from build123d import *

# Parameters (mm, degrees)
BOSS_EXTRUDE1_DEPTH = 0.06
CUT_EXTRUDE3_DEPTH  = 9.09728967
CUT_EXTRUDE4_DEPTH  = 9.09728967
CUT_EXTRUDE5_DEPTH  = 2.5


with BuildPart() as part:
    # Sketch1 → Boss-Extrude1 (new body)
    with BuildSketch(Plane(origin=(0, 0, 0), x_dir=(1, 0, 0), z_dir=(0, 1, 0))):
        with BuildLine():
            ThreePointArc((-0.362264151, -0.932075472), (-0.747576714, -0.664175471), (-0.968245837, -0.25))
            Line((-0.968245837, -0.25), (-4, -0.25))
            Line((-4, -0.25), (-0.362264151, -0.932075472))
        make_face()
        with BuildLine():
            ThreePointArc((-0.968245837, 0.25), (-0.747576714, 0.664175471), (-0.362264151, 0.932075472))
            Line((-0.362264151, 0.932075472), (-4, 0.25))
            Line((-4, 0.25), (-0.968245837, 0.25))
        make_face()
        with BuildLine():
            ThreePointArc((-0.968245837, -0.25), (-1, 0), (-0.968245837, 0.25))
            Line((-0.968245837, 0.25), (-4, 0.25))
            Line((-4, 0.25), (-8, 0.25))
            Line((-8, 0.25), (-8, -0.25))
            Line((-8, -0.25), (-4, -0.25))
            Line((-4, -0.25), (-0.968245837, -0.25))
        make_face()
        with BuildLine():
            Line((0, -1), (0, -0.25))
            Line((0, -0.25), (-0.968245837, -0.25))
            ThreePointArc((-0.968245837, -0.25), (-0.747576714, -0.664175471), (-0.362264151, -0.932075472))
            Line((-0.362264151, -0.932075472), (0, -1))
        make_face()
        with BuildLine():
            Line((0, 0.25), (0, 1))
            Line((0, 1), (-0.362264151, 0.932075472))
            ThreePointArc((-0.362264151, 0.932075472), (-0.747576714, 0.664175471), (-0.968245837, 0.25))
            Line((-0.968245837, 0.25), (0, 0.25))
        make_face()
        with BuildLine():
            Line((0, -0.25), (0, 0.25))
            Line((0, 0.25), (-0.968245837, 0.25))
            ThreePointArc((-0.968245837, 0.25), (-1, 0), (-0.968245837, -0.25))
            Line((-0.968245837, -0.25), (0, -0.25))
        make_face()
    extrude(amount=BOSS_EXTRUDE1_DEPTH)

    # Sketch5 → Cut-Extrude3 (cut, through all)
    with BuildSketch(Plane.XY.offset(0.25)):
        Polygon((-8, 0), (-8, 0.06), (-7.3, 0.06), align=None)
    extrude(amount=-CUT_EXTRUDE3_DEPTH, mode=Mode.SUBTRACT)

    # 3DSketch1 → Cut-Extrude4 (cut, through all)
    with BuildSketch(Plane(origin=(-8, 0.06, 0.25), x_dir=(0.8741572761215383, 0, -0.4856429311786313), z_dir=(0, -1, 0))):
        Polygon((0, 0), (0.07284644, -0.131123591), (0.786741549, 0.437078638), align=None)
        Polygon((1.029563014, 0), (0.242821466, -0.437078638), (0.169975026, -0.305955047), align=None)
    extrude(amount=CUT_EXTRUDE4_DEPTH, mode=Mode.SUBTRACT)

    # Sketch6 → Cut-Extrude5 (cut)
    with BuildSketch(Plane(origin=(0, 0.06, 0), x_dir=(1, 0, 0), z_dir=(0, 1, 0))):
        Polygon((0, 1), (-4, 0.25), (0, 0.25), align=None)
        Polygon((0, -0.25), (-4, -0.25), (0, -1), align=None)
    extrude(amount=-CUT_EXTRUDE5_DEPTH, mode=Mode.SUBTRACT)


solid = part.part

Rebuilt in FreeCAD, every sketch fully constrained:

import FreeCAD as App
import Part
import Sketcher
from FreeCAD import Vector
Q = App.Units.Quantity


def add_polygon(sketch, points):
    """Adds a closed chain of lines whose ends are joined by coincident constraints."""
    first, n = sketch.GeometryCount, len(points)
    for a, b in zip(points, points[1:] + points[:1]):
        sketch.addGeometry(Part.LineSegment(App.Vector(*a, 0), App.Vector(*b, 0)), False)
    for i in range(n):
        sketch.addConstraint(Sketcher.Constraint("Coincident", first + i, 2, first + (i + 1) % n, 1))

doc = App.newDocument("Part")
body = doc.addObject("PartDesign::Body", "Body")

# Sketch on XZ plane
sketch1 = body.newObject("Sketcher::SketchObject", "Sketch")
sketch1.AttachmentSupport = (doc.getObject("XZ_Plane"), [""])
sketch1.MapMode = "FlatFace"
add_polygon(sketch1, [(0, -1), (-0.362264, -0.932075), (-4, -0.25), (-8, -0.25), (-8, 0.25), (-4, 0.25), (-0.362264, 0.932075), (0, 1)])  # lines 0-7
sketch1.addConstraint([
    Sketcher.Constraint("Horizontal", 2),
    Sketcher.Constraint("Vertical", 3),
    Sketcher.Constraint("Horizontal", 4),
    Sketcher.Constraint("Vertical", 7),
    Sketcher.Constraint("Symmetric", 6, 2, 7, 2, -1, 1),
    Sketcher.Constraint("Symmetric", 1, 2, 4, 2, -1),
    Sketcher.Constraint("Symmetric", 0, 2, 5, 2, -1),
    Sketcher.Constraint("Parallel", 0, 1),
    Sketcher.Constraint("DistanceX", 2, 2, 2, 1, Q("4 mm")),
    Sketcher.Constraint("DistanceY", 7, 2, 7, 1, Q("2 mm")),
    Sketcher.Constraint("DistanceY", 3, 1, 3, 2, Q("0.5 mm")),
    Sketcher.Constraint("DistanceX", 1, 2, -1, 1, Q("4 mm")),
    Sketcher.Constraint("Distance", 1, Q("3.701128 mm")),
])
pad1 = body.newObject("PartDesign::Pad", "Pad")
pad1.Profile = sketch1
pad1.Length = 0.06
pad1.Reversed = True

# Sketch on XY plane
sketch2 = body.newObject("Sketcher::SketchObject", "Sketch001")
sketch2.AttachmentSupport = (doc.getObject("XY_Plane"), [""])
sketch2.MapMode = "FlatFace"
sketch2.AttachmentOffset = App.Placement(Vector(0, 0, 0.25), App.Rotation())
add_polygon(sketch2, [(-8, 0.06), (-8, 0), (-7.3, 0.06)])  # lines 0-2
sketch2.addConstraint([
    Sketcher.Constraint("Vertical", 0),
    Sketcher.Constraint("Horizontal", 2),
    Sketcher.Constraint("PointOnObject", 0, 2, -1),
    Sketcher.Constraint("DistanceX", 2, 2, 2, 1, Q("0.7 mm")),
    Sketcher.Constraint("DistanceX", 0, 2, -1, 1, Q("8 mm")),
    Sketcher.Constraint("DistanceY", 0, 2, 0, 1, Q("0.06 mm")),
])
pocket1 = body.newObject("PartDesign::Pocket", "Pocket")
pocket1.Profile = sketch2
pocket1.Type = "ThroughAll"

# Sketch on XZ plane
sketch3 = body.newObject("Sketcher::SketchObject", "Sketch002")
sketch3.AttachmentSupport = (doc.getObject("XZ_Plane"), [""])
sketch3.MapMode = "FlatFace"
sketch3.AttachmentOffset = App.Placement(Vector(0, 0, -0.06), App.Rotation())
add_polygon(sketch3, [(-8, 0.25), (-8, 0.1), (-7.1, 0.25)])  # lines 0-2
add_polygon(sketch3, [(-8, -0.25), (-7.1, -0.25), (-8, -0.1)])  # lines 3-5
sketch3.addConstraint([
    Sketcher.Constraint("Vertical", 0),
    Sketcher.Constraint("Horizontal", 2),
    Sketcher.Constraint("Horizontal", 3),
    Sketcher.Constraint("Vertical", 5),
    Sketcher.Constraint("Symmetric", 1, 2, 3, 2, -1),
    Sketcher.Constraint("Symmetric", 0, 2, 4, 2, -1),
    Sketcher.Constraint("DistanceX", 2, 2, 2, 1, Q("0.9 mm")),
    Sketcher.Constraint("DistanceX", 0, 2, -1, 1, Q("8 mm")),
    Sketcher.Constraint("DistanceY", 0, 2, 0, 1, Q("0.15 mm")),
    Sketcher.Constraint("DistanceY", -1, 1, 0, 2, Q("0.1 mm")),
])
pocket2 = body.newObject("PartDesign::Pocket", "Pocket001")
pocket2.Profile = sketch3
pocket2.Type = "ThroughAll"
pocket2.Reversed = True

# Sketch on XZ plane
sketch4 = body.newObject("Sketcher::SketchObject", "Sketch003")
sketch4.AttachmentSupport = (doc.getObject("XZ_Plane"), [""])
sketch4.MapMode = "FlatFace"
sketch4.AttachmentOffset = App.Placement(Vector(0, 0, -0.06), App.Rotation())
add_polygon(sketch4, [(0, -1), (-4, -0.25), (0, -0.25)])  # lines 0-2
add_polygon(sketch4, [(0, 0.25), (-4, 0.25), (0, 1)])  # lines 3-5
sketch4.addConstraint([
    Sketcher.Constraint("Horizontal", 1),
    Sketcher.Constraint("Vertical", 2),
    Sketcher.Constraint("Horizontal", 3),
    Sketcher.Constraint("Vertical", 5),
    Sketcher.Constraint("Symmetric", 2, 2, 4, 2, -1, 1),
    Sketcher.Constraint("Symmetric", 0, 2, 3, 2, -1),
    Sketcher.Constraint("PointOnObject", 1, 2, -2),
    Sketcher.Constraint("DistanceX", 1, 1, 1, 2, Q("4 mm")),
    Sketcher.Constraint("DistanceY", 2, 2, -1, 1, Q("1 mm")),
    Sketcher.Constraint("DistanceY", 2, 2, 2, 1, Q("0.75 mm")),
])
pocket3 = body.newObject("PartDesign::Pocket", "Pocket002")
pocket3.Profile = sketch4
pocket3.Length = 2.5
pocket3.Reversed = True

doc.recompute()
